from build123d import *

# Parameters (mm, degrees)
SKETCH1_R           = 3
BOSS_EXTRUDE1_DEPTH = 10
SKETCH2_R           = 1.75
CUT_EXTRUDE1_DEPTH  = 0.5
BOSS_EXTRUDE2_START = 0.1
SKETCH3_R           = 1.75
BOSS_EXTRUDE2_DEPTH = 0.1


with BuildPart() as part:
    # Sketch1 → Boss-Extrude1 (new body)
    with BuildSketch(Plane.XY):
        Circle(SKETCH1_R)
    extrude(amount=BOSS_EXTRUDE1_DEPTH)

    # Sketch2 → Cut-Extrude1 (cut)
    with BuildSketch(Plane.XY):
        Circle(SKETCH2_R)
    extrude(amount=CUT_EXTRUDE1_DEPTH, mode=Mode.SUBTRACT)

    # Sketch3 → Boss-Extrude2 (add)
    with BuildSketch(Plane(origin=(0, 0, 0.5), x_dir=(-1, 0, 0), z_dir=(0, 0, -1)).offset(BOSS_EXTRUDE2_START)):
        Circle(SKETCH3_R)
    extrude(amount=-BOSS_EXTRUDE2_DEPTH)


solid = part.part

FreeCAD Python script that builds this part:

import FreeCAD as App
import Part
import Sketcher
from FreeCAD import Vector

doc = App.newDocument("Part")
params = doc.addObject("Spreadsheet::Sheet", "Params")
for row, (alias, value) in enumerate([
    ("sketch1_diameter", "6 mm"),
    ("pad1_length", "10 mm"),
    ("sketch2_diameter", "3.5 mm"),
    ("pocket1_length", "0.5 mm"),
    ("sketch3_diameter", "3.5 mm"),
    ("pad2_length", "0.1 mm"),
], start=1):
    params.set(f"A{row}", alias)
    params.set(f"B{row}", "=" + value)
    params.setAlias(f"B{row}", alias)

body = doc.addObject("PartDesign::Body", "Body")

sketch1 = body.newObject("Sketcher::SketchObject", "Sketch")
sketch1.AttachmentSupport = (doc.getObject("XY_Plane"), [""])
sketch1.MapMode = "FlatFace"
sketch1.addGeometry(Part.Circle(Vector(0, 0, 0), Vector(0, 0, 1), 3), False)
sketch1.addConstraint(Sketcher.Constraint("Coincident", 0, 3, -1, 1))
sketch1.addConstraint(Sketcher.Constraint("Diameter", 0, 6.0))
sketch1.setExpression("Constraints[1]", "Params.sketch1_diameter")
pad1 = body.newObject("PartDesign::Pad", "Pad")
pad1.Profile = sketch1
pad1.setExpression("Length", "Params.pad1_length")

sketch2 = body.newObject("Sketcher::SketchObject", "Sketch001")
sketch2.AttachmentSupport = (doc.getObject("XY_Plane"), [""])
sketch2.MapMode = "FlatFace"
sketch2.addGeometry(Part.Circle(Vector(0, 0, 0), Vector(0, 0, 1), 1.8), False)
sketch2.addConstraint(Sketcher.Constraint("Coincident", 0, 3, -1, 1))
sketch2.addConstraint(Sketcher.Constraint("Diameter", 0, 3.5))
sketch2.setExpression("Constraints[1]", "Params.sketch2_diameter")
pocket1 = body.newObject("PartDesign::Pocket", "Pocket")
pocket1.Profile = sketch2
pocket1.setExpression("Length", "Params.pocket1_length")
pocket1.Reversed = True

sketch3 = body.newObject("Sketcher::SketchObject", "Sketch002")
sketch3.AttachmentSupport = (doc.getObject("XY_Plane"), [""])
sketch3.MapMode = "FlatFace"
sketch3.AttachmentOffset = App.Placement(Vector(0, 0, 0.4), App.Rotation())
sketch3.addGeometry(Part.Circle(Vector(0, 0, 0), Vector(0, 0, 1), 1.8), False)
sketch3.addConstraint(Sketcher.Constraint("Coincident", 0, 3, -1, 1))
sketch3.addConstraint(Sketcher.Constraint("Diameter", 0, 3.5))
sketch3.setExpression("Constraints[1]", "Params.sketch3_diameter")
pad2 = body.newObject("PartDesign::Pad", "Pad001")
pad2.Profile = sketch3
pad2.setExpression("Length", "Params.pad2_length")

doc.recompute()
